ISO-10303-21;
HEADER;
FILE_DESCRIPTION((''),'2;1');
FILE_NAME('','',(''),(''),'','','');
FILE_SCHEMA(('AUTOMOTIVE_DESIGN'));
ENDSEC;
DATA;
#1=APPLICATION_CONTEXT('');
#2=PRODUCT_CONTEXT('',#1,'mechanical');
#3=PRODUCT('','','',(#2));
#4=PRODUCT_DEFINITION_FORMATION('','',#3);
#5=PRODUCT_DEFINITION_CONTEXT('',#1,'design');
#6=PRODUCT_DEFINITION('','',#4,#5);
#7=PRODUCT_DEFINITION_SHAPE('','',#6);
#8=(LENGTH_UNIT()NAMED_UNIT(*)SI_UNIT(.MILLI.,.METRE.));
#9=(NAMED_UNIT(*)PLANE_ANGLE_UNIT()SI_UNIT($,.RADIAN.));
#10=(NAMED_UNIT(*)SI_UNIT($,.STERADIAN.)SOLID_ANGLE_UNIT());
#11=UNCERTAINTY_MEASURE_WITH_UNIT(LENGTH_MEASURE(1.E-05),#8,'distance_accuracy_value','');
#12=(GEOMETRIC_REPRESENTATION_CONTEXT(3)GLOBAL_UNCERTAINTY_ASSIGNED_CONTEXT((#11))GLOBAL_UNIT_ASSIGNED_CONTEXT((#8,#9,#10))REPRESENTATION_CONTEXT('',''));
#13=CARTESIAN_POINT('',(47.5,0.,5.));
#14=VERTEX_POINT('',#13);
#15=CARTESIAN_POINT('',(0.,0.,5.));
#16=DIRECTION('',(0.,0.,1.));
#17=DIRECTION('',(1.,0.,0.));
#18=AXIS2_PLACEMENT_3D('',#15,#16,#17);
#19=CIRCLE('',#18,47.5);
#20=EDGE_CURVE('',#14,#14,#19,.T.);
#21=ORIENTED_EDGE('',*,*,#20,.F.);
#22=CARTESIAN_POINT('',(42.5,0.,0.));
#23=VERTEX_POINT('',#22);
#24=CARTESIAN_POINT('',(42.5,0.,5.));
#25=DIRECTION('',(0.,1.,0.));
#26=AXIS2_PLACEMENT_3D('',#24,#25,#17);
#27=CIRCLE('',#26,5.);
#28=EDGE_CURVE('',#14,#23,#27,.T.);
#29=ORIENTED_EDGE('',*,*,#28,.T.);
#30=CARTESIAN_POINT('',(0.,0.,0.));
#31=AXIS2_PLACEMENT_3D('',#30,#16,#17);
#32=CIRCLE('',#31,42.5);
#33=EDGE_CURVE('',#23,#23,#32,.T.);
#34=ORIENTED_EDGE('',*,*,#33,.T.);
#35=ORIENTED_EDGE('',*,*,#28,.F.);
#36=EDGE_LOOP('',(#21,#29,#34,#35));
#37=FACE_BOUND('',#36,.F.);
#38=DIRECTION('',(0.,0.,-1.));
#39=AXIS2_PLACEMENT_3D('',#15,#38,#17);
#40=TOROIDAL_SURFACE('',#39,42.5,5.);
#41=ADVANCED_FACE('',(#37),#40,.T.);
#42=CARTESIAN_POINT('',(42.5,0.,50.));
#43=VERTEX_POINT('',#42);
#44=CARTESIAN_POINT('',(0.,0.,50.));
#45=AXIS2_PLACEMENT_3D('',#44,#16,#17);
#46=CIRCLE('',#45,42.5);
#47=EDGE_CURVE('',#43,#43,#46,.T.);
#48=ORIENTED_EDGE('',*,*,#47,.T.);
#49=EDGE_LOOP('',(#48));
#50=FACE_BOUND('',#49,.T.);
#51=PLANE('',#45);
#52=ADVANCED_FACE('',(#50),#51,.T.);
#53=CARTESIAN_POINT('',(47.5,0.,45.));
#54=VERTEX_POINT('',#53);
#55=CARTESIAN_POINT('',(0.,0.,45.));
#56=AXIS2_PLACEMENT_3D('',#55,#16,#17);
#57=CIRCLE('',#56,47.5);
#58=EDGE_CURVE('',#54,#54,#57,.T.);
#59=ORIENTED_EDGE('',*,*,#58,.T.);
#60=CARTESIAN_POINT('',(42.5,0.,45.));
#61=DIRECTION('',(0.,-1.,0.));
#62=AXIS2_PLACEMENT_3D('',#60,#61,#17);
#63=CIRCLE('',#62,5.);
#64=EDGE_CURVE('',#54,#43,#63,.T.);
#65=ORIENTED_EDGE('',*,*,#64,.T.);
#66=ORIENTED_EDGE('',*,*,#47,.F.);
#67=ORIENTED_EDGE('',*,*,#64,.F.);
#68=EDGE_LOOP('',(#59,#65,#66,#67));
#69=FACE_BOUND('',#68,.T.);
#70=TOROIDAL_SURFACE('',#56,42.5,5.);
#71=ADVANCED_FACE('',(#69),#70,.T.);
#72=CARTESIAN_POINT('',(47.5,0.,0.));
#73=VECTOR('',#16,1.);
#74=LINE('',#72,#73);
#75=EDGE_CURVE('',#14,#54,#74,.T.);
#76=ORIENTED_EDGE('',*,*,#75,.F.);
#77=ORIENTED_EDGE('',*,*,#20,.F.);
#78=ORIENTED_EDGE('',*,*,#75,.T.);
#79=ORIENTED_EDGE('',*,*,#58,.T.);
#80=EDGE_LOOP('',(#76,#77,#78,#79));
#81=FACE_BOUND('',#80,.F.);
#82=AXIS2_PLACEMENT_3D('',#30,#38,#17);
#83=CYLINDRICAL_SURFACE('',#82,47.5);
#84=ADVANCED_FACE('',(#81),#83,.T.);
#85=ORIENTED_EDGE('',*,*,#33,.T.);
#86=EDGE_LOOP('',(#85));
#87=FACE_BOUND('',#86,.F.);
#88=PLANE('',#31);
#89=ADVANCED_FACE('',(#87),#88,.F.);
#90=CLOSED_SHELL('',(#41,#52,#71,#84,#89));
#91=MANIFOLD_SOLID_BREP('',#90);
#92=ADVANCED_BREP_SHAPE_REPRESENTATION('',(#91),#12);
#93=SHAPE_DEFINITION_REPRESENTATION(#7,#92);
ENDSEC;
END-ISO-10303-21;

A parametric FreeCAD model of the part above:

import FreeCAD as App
import Part
import Sketcher


def edges_at(feature, points):
    """Names of the edges that pass closest to the given points."""
    edges = feature.Shape.Edges
    near = lambda p: min(range(len(edges)), key=lambda i: edges[i].distToShape(Part.Vertex(*p))[0])
    return sorted({f"Edge{near(p) + 1}" for p in points})

doc = App.newDocument("Part")
body = doc.addObject("PartDesign::Body", "Body")

sketch1 = body.newObject("Sketcher::SketchObject", "Sketch")
sketch1.AttachmentSupport = (doc.getObject("XY_Plane"), [""])
sketch1.MapMode = "FlatFace"
sketch1.addGeometry(Part.Circle(App.Vector(0, 0, 0), App.Vector(0, 0, 1), 48), False)
sketch1.addConstraint([
    Sketcher.Constraint("Coincident", 0, 3, -1, 1),
    Sketcher.Constraint("Diameter", 0, 95.0),
])
pad1 = body.newObject("PartDesign::Pad", "Pad")
pad1.Profile = sketch1
pad1.Length = 50
doc.recompute()

fillet = body.newObject("PartDesign::Fillet", "Fillet")
fillet.Base = (pad1, edges_at(pad1, [(-47.5, 0, 0), (-47.5, 0, 50)]))
fillet.Radius = 5

doc.recompute()
